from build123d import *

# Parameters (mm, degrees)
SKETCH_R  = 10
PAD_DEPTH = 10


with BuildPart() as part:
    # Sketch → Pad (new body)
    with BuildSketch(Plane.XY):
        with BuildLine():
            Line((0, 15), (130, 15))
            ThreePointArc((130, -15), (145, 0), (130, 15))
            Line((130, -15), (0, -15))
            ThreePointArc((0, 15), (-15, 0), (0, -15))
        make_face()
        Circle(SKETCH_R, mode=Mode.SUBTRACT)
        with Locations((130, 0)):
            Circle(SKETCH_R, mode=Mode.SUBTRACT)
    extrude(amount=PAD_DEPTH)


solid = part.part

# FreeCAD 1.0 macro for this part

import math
import FreeCAD as App
import Part
import Sketcher

V = App.Vector
Q = App.Units.Quantity

doc = App.newDocument("Part")
body = doc.addObject("PartDesign::Body", "Body")

# Sketch on XY plane
sketch1 = body.newObject("Sketcher::SketchObject", "Sketch")
sketch1.AttachmentSupport = (doc.getObject("XY_Plane"), [""])
sketch1.MapMode = "FlatFace"
sketch1.addGeometry(Part.LineSegment(V(130, 15, 0), V(0, 15, 0)), False)
sketch1.addGeometry(Part.ArcOfCircle(Part.Circle(V(0, 0, 0), V(0, 0, 1), 15), math.radians(90), math.radians(270)), False)
sketch1.addGeometry(Part.LineSegment(V(0, -15, 0), V(130, -15, 0)), False)
sketch1.addGeometry(Part.ArcOfCircle(Part.Circle(V(130, 0, 0), V(0, 0, 1), 15), math.radians(-90), math.radians(90)), False)
sketch1.addGeometry(Part.Circle(V(130, 0, 0), V(0, 0, 1), 10), False)
sketch1.addGeometry(Part.Circle(V(0, 0, 0), V(0, 0, 1), 10), False)
sketch1.addConstraint(Sketcher.Constraint("Tangent", 0, 2, 1, 1))
sketch1.addConstraint(Sketcher.Constraint("Tangent", 1, 2, 2, 1))
sketch1.addConstraint(Sketcher.Constraint("Tangent", 2, 2, 3, 1))
sketch1.addConstraint(Sketcher.Constraint("Tangent", 3, 2, 0, 1))
sketch1.addConstraint(Sketcher.Constraint("Horizontal", 0))
sketch1.addConstraint(Sketcher.Constraint("Horizontal", 2))
sketch1.addConstraint(Sketcher.Constraint("Coincident", 1, 3, -1, 1))
sketch1.addConstraint(Sketcher.Constraint("Coincident", 5, 3, -1, 1))
sketch1.addConstraint(Sketcher.Constraint("Coincident", 4, 3, 3, 3))
sketch1.addConstraint(Sketcher.Constraint("Equal", 4, 5))
sketch1.addConstraint(Sketcher.Constraint("Diameter", 4, Q("20 mm")))
sketch1.addConstraint(Sketcher.Constraint("Radius", 1, Q("15 mm")))
sketch1.addConstraint(Sketcher.Constraint("DistanceX", 0, 2, 0, 1, Q("130 mm")))
pad1 = body.newObject("PartDesign::Pad", "Pad")
pad1.Profile = sketch1
pad1.Length = 10

doc.recompute()
